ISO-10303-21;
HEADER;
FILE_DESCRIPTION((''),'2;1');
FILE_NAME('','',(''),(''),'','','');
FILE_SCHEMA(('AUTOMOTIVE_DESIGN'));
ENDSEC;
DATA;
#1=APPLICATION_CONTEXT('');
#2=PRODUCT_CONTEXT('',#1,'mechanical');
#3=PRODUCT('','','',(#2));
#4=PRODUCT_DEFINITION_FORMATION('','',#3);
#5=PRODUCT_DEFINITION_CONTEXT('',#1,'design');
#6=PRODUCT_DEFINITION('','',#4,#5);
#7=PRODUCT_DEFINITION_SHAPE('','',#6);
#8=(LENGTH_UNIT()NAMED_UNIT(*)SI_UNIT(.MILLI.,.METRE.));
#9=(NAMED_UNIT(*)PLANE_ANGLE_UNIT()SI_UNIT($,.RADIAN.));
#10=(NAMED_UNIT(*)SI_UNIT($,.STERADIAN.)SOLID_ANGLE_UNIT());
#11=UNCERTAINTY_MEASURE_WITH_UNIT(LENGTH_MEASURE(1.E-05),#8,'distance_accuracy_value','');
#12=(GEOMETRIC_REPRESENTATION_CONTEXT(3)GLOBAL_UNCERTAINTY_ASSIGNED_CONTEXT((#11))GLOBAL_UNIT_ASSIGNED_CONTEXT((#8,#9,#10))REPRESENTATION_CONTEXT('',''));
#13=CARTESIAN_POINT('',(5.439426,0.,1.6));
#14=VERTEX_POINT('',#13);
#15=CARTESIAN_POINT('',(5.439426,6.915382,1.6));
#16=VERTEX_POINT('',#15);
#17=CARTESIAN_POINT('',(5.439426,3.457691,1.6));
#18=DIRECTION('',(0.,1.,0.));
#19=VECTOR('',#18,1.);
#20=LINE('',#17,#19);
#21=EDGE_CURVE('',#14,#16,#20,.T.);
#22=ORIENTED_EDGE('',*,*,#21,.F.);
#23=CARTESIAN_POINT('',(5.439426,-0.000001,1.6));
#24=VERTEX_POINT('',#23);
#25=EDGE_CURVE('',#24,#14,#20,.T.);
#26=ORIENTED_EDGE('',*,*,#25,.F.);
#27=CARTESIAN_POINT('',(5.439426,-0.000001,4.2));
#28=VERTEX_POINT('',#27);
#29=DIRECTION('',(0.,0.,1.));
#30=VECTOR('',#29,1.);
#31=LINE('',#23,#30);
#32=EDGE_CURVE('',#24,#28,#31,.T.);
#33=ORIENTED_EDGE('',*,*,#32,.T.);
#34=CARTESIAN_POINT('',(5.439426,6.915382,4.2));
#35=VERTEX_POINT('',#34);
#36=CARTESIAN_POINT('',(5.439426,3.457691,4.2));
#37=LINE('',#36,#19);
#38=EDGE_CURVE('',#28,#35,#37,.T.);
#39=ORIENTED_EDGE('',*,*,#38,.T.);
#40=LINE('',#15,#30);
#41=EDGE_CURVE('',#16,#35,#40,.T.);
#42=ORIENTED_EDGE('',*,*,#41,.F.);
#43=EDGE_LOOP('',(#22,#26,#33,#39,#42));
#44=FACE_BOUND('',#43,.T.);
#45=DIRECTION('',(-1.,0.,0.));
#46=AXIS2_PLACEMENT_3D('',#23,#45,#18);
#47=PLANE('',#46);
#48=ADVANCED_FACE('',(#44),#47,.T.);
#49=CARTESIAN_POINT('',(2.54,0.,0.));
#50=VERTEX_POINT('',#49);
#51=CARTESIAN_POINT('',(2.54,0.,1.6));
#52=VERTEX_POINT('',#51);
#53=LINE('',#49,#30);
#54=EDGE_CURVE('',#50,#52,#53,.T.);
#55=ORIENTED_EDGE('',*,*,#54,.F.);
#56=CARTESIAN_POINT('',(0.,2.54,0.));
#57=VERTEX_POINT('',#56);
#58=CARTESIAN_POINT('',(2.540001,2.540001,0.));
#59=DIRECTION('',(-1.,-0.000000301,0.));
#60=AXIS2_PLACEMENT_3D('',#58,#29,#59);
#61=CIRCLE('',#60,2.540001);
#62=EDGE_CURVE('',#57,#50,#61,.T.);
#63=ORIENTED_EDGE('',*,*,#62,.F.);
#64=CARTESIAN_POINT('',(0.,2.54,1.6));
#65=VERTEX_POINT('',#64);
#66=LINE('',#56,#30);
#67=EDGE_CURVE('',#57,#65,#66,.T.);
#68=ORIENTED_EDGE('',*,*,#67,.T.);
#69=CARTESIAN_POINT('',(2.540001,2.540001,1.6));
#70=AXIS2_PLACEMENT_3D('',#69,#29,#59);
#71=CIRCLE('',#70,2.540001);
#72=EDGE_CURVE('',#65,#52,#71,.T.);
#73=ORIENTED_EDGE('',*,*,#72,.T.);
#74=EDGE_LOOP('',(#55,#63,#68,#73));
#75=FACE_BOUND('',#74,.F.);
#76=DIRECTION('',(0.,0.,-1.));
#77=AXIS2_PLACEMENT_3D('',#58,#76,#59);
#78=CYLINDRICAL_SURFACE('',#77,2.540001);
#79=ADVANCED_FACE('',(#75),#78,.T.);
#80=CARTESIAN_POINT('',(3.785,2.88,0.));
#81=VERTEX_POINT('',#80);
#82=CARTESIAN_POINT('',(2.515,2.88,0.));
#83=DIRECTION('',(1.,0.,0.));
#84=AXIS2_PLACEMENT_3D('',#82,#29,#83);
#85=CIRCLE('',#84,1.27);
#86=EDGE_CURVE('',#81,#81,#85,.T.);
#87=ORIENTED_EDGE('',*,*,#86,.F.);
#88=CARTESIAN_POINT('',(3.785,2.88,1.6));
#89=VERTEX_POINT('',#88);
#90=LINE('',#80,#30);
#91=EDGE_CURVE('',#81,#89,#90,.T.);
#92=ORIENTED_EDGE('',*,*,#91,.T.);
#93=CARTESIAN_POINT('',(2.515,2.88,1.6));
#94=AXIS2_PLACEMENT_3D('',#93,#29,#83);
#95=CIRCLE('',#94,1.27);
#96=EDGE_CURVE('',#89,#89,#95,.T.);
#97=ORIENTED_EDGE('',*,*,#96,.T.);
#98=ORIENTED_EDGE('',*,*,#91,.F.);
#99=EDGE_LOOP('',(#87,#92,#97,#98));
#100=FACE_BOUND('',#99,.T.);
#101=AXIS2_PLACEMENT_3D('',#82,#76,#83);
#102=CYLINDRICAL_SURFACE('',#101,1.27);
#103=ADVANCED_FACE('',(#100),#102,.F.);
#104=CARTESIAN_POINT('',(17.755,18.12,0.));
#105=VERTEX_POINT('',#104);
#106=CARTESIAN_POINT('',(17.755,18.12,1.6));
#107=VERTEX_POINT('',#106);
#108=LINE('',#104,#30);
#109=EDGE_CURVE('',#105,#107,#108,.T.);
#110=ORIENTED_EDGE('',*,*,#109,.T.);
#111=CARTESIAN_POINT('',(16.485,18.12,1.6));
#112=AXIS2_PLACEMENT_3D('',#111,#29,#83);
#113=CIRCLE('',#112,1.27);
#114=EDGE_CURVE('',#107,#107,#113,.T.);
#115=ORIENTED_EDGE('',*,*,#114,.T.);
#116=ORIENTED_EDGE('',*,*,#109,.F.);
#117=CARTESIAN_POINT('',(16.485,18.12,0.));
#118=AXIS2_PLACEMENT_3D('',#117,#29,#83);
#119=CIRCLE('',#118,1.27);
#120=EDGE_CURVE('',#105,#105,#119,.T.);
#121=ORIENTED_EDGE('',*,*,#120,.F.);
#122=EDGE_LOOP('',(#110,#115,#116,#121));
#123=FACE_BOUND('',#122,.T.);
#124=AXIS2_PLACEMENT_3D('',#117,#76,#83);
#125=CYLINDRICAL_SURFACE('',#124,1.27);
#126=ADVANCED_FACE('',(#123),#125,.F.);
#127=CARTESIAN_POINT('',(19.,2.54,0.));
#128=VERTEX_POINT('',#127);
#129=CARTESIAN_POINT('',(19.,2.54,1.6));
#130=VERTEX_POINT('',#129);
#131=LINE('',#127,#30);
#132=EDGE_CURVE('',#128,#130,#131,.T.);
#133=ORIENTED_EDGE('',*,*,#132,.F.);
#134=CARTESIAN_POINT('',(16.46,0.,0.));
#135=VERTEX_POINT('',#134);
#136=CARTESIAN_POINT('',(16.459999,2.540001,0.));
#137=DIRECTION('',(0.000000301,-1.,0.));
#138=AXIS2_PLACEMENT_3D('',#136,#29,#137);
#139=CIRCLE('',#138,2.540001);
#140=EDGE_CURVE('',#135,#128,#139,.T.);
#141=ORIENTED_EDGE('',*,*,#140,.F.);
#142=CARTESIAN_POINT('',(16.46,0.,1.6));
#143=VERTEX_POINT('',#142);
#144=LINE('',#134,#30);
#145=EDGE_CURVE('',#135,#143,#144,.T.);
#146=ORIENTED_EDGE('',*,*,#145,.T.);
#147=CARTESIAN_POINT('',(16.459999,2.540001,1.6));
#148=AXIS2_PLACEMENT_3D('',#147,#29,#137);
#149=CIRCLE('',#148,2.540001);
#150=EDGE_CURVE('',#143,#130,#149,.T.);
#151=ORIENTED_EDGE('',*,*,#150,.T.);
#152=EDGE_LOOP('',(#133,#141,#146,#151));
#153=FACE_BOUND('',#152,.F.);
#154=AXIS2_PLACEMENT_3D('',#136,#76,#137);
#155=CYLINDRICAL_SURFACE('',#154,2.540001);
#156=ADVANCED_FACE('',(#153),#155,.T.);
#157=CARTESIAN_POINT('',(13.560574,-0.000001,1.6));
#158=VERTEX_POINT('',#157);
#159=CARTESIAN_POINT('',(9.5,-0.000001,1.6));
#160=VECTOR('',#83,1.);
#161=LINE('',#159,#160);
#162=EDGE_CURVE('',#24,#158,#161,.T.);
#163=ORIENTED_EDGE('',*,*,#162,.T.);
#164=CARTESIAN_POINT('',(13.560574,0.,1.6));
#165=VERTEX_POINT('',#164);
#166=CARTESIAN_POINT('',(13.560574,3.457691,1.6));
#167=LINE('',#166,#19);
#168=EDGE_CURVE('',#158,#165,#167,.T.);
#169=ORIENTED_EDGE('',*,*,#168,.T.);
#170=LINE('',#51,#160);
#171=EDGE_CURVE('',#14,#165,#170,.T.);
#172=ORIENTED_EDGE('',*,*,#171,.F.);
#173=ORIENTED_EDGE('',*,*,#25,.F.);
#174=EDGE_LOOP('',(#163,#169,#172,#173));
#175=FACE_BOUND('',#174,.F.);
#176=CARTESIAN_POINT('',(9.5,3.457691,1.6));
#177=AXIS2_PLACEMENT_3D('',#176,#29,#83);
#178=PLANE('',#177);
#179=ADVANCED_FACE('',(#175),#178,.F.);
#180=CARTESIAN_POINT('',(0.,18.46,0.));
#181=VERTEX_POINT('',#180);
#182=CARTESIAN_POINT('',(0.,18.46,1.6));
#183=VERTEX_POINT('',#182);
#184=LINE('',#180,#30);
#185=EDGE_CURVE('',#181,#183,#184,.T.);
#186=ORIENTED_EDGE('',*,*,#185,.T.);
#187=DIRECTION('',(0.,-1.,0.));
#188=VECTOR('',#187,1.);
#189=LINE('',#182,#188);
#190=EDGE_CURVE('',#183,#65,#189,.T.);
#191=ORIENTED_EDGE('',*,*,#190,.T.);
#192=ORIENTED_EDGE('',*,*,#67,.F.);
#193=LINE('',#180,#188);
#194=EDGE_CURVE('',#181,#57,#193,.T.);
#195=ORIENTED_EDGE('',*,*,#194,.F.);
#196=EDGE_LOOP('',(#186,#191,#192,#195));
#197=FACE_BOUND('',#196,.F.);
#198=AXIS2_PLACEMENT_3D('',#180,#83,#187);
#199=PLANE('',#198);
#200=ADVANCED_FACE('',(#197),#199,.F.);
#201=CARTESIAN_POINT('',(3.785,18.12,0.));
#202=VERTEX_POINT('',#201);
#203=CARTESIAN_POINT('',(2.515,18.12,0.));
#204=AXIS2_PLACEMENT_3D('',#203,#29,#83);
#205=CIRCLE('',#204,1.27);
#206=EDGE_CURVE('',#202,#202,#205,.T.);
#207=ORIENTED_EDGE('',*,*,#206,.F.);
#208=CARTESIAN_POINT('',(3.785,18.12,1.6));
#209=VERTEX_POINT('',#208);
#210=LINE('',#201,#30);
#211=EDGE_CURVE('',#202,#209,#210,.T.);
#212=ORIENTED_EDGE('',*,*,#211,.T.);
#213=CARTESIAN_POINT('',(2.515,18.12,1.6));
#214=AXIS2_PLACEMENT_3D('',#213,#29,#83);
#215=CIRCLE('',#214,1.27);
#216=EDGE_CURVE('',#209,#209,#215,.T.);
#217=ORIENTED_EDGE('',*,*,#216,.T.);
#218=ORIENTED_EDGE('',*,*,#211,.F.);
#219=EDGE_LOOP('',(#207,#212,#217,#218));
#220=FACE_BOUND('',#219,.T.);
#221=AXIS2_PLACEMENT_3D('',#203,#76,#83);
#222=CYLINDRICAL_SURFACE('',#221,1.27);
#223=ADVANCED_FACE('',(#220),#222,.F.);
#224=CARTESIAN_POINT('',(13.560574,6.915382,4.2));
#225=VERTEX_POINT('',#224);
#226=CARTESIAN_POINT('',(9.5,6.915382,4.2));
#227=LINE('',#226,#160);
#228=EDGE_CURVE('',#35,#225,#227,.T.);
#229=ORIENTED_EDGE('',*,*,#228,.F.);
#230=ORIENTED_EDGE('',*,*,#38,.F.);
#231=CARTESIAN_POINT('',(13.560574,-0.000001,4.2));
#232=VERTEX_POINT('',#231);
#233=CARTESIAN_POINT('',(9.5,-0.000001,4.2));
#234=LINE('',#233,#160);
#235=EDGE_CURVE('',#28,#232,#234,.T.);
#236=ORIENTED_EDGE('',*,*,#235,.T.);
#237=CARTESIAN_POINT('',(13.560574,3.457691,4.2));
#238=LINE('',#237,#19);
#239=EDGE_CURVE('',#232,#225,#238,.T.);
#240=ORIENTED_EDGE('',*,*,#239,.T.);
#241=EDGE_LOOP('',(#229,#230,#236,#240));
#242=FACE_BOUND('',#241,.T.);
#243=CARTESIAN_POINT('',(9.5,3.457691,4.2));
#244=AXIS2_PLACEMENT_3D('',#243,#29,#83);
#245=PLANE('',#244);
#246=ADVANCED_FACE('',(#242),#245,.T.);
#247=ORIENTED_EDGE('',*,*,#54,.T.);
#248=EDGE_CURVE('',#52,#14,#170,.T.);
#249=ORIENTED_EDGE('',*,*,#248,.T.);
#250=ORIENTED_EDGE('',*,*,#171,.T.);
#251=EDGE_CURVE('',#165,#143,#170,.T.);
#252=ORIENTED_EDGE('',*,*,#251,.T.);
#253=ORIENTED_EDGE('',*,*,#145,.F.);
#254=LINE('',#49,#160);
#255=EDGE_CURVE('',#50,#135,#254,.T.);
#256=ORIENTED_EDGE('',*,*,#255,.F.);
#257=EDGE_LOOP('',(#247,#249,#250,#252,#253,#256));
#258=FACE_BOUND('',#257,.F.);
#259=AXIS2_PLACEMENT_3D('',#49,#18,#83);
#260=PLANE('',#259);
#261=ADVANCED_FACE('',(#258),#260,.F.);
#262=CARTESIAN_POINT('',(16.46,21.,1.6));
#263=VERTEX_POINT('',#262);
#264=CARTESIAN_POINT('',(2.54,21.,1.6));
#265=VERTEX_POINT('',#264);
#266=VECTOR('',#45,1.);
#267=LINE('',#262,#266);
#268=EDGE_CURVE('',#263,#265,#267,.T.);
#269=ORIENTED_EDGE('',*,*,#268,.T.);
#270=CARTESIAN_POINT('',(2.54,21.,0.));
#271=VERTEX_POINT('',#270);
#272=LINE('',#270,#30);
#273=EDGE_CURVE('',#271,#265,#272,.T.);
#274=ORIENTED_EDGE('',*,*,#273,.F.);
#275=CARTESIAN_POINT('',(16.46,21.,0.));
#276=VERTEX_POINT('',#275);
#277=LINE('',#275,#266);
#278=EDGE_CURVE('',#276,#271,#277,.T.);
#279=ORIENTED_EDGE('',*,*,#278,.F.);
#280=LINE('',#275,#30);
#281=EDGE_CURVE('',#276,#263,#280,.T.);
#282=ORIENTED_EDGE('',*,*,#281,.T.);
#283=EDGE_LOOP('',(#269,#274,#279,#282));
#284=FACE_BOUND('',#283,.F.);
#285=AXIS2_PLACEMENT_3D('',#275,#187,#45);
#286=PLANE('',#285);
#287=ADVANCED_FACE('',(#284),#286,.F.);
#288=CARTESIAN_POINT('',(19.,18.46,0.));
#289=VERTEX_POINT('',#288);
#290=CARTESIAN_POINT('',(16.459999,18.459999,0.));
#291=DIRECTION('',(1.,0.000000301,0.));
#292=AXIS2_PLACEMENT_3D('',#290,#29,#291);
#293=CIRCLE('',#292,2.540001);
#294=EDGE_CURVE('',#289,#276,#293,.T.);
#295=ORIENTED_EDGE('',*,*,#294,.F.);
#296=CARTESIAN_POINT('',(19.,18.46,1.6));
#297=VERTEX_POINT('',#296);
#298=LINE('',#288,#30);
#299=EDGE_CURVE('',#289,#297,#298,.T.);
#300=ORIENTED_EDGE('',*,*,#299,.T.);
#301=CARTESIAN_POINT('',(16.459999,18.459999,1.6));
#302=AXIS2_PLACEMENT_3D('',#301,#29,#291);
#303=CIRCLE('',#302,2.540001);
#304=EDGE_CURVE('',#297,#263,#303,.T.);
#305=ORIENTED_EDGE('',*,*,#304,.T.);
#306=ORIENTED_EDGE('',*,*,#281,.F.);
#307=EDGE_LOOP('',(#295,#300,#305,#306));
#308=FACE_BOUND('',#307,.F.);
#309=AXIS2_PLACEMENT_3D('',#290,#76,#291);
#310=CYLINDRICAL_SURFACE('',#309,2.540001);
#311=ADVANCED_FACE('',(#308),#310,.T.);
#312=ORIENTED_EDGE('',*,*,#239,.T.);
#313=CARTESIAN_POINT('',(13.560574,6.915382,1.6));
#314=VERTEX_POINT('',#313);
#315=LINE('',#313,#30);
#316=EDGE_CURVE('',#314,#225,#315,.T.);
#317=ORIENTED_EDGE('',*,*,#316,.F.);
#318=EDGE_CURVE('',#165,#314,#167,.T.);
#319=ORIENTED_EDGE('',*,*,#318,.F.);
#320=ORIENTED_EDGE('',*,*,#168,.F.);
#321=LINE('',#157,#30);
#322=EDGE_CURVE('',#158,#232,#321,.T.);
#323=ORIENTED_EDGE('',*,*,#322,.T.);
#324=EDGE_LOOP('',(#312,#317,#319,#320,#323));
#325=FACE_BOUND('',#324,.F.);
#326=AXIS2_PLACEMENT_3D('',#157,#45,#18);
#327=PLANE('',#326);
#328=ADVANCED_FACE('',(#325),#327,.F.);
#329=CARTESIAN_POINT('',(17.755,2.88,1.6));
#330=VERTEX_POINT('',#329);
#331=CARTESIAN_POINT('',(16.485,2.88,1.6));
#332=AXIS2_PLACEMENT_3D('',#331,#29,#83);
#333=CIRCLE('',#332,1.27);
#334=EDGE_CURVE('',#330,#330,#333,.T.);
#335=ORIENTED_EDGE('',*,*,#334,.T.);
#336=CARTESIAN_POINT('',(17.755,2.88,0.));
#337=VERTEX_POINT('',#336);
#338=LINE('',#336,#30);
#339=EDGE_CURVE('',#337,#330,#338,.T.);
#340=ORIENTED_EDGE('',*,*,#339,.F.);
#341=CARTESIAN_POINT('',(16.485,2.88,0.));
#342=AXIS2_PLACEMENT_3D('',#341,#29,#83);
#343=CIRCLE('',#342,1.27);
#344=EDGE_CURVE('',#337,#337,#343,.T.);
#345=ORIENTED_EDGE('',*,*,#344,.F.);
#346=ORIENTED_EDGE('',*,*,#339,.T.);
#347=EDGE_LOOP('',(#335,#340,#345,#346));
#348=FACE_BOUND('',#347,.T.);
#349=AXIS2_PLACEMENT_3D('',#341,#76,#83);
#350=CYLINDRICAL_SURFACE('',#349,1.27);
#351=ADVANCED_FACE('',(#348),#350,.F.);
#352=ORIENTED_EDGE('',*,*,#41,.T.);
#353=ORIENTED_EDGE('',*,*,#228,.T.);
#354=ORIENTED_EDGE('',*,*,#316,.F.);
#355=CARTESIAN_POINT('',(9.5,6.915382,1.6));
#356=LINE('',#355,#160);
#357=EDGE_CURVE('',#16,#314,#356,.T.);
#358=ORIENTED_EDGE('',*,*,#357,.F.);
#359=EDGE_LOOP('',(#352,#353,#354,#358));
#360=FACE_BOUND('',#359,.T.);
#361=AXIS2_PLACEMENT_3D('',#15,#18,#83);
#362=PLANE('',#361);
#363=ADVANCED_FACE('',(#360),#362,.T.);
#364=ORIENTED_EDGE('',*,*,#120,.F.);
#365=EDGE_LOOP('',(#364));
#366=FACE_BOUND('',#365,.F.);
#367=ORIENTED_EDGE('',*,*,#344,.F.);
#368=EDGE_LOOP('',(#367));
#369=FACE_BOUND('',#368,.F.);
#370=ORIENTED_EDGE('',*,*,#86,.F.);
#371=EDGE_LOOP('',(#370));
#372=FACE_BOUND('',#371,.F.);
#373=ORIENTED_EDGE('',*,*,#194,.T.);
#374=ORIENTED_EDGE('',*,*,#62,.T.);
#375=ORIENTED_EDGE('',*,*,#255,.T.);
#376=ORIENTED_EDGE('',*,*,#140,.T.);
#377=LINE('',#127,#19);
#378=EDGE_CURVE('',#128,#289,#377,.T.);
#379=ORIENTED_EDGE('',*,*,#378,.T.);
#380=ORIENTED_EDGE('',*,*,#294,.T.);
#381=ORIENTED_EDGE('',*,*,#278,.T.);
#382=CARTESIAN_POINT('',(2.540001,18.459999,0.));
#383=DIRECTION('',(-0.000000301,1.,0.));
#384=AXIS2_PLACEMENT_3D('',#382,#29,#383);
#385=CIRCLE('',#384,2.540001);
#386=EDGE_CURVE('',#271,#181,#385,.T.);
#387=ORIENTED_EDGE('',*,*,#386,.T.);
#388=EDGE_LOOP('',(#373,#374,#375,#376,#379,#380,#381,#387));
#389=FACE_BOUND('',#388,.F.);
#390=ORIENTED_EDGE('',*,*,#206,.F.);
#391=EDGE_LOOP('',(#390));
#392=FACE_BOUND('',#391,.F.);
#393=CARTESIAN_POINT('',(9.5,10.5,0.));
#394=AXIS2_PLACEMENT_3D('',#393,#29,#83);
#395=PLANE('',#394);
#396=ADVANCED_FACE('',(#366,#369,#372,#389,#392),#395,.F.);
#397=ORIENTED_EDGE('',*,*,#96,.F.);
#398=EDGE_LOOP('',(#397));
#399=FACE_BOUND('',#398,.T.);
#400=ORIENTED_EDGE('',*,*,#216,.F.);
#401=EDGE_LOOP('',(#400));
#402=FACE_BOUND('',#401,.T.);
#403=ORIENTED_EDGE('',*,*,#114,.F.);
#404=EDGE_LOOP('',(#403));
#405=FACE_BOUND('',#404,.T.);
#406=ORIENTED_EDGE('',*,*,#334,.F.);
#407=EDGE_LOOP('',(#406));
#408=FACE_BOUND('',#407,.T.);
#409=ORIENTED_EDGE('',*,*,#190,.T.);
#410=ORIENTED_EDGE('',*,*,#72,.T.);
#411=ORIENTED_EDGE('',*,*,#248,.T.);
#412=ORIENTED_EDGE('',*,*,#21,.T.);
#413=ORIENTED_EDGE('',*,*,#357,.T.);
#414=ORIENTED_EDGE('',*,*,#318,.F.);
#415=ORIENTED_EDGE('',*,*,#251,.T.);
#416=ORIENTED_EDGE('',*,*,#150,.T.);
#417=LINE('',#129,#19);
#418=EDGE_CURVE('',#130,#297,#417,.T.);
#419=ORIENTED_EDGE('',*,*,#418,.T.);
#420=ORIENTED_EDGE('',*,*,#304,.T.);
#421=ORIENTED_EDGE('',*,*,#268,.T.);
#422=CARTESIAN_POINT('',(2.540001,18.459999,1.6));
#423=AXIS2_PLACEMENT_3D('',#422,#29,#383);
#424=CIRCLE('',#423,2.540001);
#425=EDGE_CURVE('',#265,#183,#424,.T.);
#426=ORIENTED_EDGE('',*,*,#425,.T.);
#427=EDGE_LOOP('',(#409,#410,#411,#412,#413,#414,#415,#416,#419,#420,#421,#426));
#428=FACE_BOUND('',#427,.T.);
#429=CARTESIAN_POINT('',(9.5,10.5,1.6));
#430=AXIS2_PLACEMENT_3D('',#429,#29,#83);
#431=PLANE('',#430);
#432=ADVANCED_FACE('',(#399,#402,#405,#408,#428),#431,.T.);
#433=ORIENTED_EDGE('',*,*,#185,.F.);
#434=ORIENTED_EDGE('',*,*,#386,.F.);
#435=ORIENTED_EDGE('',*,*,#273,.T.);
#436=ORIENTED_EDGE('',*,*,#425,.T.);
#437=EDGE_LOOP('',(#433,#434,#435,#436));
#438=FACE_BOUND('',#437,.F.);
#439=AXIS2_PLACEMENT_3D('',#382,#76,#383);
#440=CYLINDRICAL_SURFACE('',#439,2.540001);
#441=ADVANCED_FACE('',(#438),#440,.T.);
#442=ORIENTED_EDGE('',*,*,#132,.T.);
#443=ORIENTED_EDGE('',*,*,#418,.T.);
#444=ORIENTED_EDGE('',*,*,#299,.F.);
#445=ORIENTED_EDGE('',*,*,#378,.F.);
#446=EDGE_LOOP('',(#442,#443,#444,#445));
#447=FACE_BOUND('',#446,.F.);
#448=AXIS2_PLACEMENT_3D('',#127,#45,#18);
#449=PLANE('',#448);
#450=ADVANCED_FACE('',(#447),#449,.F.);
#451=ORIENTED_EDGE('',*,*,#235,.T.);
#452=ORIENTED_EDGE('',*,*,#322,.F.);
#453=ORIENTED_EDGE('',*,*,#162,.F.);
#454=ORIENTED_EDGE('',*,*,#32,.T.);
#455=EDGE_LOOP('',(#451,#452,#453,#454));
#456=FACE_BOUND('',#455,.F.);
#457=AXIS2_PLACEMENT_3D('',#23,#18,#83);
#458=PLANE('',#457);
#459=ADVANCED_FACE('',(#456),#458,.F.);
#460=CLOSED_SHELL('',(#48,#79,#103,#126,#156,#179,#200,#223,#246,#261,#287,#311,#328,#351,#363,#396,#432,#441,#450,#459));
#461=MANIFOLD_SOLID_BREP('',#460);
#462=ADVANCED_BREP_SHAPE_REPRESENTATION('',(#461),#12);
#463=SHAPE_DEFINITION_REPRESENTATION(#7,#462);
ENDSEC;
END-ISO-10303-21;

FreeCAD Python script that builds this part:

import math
import FreeCAD as App
import Part
import Sketcher

V = App.Vector
Q = App.Units.Quantity

doc = App.newDocument("Part")
params = doc.addObject("Spreadsheet::Sheet", "Params")
for row, (alias, value) in enumerate([
    ("sketch1_diameter", "2.54 mm"),
    ("sketch1_radius", "2.540001 mm"),
    ("pad1_length", "1.6 mm"),
    ("pad2_length", "2.6 mm"),
], start=1):
    params.set(f"A{row}", alias)
    params.set(f"B{row}", "=" + value)
    params.setAlias(f"B{row}", alias)

body = doc.addObject("PartDesign::Body", "Body")

sketch1 = doc.addObject("Sketcher::SketchObject", "Sketch")
body.addObject(sketch1)
sketch1.AttachmentSupport = (doc.XY_Plane, [""])
sketch1.MapMode = "FlatFace"
sketch1.addGeometry([
    Part.ArcOfCircle(Part.Circle(V(2.540001, 2.540001, 0), V(0, 0, 1), 2.540001), math.radians(-179.999983), math.radians(-90.000017)),
    Part.LineSegment(V(2.54, 0, 0), V(16.46, 0, 0)),
    Part.ArcOfCircle(Part.Circle(V(16.459999, 2.540001, 0), V(0, 0, 1), 2.540001), math.radians(-89.999983), math.radians(-0.000017)),
    Part.LineSegment(V(19, 2.54, 0), V(19, 18.46, 0)),
    Part.ArcOfCircle(Part.Circle(V(16.459999, 18.459999, 0), V(0, 0, 1), 2.540001), math.radians(0.000017), math.radians(89.999983)),
    Part.LineSegment(V(16.46, 21, 0), V(2.54, 21, 0)),
    Part.ArcOfCircle(Part.Circle(V(2.540001, 18.459999, 0), V(0, 0, 1), 2.540001), math.radians(90.000017), math.radians(179.999983)),
    Part.LineSegment(V(0, 18.46, 0), V(0, 2.54, 0)),
    Part.Circle(V(2.515, 2.88, 0), V(0, 0, 1), 1.27),
    Part.Circle(V(16.485, 2.88, 0), V(0, 0, 1), 1.27),
    Part.Circle(V(2.515, 18.12, 0), V(0, 0, 1), 1.27),
    Part.Circle(V(16.485, 18.12, 0), V(0, 0, 1), 1.27),
], False)
sketch1.addConstraint([
    Sketcher.Constraint("Tangent", 0, 2, 1, 1),
    Sketcher.Constraint("Tangent", 1, 2, 2, 1),
    Sketcher.Constraint("Tangent", 2, 2, 3, 1),
    Sketcher.Constraint("Tangent", 3, 2, 4, 1),
    Sketcher.Constraint("Tangent", 4, 2, 5, 1),
    Sketcher.Constraint("Tangent", 5, 2, 6, 1),
    Sketcher.Constraint("Tangent", 6, 2, 7, 1),
    Sketcher.Constraint("Tangent", 7, 2, 0, 1),
    Sketcher.Constraint("Horizontal", 1),
    Sketcher.Constraint("Vertical", 3),
    Sketcher.Constraint("Horizontal", 5),
    Sketcher.Constraint("Vertical", 7),
    Sketcher.Constraint("Equal", 0, 2),
    Sketcher.Constraint("Equal", 2, 4),
    Sketcher.Constraint("Equal", 4, 6),
    Sketcher.Constraint("Equal", 8, 9),
    Sketcher.Constraint("Equal", 9, 10),
    Sketcher.Constraint("Equal", 10, 11),
    Sketcher.Constraint("PointOnObject", 0, 2, -1),
    Sketcher.Constraint("PointOnObject", 6, 2, -2),
    Sketcher.Constraint("Horizontal", 8, 3, 9, 3),
    Sketcher.Constraint("Horizontal", 10, 3, 11, 3),
    Sketcher.Constraint("Vertical", 8, 3, 10, 3),
    Sketcher.Constraint("Vertical", 9, 3, 11, 3),
    Sketcher.Constraint("Diameter", 8, Q("2.54 mm")),
    Sketcher.Constraint("Radius", 0, Q("2.540001 mm")),
    Sketcher.Constraint("DistanceX", -1, 1, 2, 2, Q("19 mm")),
    Sketcher.Constraint("DistanceY", -1, 1, 4, 2, Q("21 mm")),
    Sketcher.Constraint("DistanceY", -1, 1, 8, 3, Q("2.88 mm")),
    Sketcher.Constraint("DistanceY", -1, 1, 10, 3, Q("18.12 mm")),
    Sketcher.Constraint("DistanceX", 8, 3, 9, 3, Q("13.97 mm")),
    Sketcher.Constraint("DistanceX", -1, 1, 8, 3, Q("2.515 mm")),
])
sketch1.setExpression("Constraints[24]", "Params.sketch1_diameter")
sketch1.setExpression("Constraints[25]", "Params.sketch1_radius")
pad1 = doc.addObject("PartDesign::Pad", "Pad")
body.addObject(pad1)
pad1.Profile = sketch1
pad1.setExpression("Length", "Params.pad1_length")

sketch2 = doc.addObject("Sketcher::SketchObject", "Sketch001")
body.addObject(sketch2)
sketch2.AttachmentSupport = (doc.XY_Plane, [""])
sketch2.MapMode = "FlatFace"
sketch2.AttachmentOffset = App.Placement(V(0, 0, 1.6), App.Rotation())
sketch2.addGeometry([
    Part.LineSegment(V(5.439426, 6.915382, 0), V(5.439426, 0, 0)),
    Part.LineSegment(V(5.439426, 0, 0), V(13.560574, 0, 0)),
    Part.LineSegment(V(13.560574, 0, 0), V(13.560574, 6.915382, 0)),
    Part.LineSegment(V(13.560574, 6.915382, 0), V(5.439426, 6.915382, 0)),
], False)
sketch2.addConstraint([
    Sketcher.Constraint("Coincident", 0, 2, 1, 1),
    Sketcher.Constraint("Coincident", 1, 2, 2, 1),
    Sketcher.Constraint("Coincident", 2, 2, 3, 1),
    Sketcher.Constraint("Coincident", 3, 2, 0, 1),
    Sketcher.Constraint("Vertical", 0),
    Sketcher.Constraint("Horizontal", 1),
    Sketcher.Constraint("Vertical", 2),
    Sketcher.Constraint("Horizontal", 3),
    Sketcher.Constraint("PointOnObject", 0, 2, -1),
    Sketcher.Constraint("DistanceX", 1, 1, 1, 2, Q("8.121148 mm")),
    Sketcher.Constraint("DistanceY", 0, 2, 0, 1, Q("6.915383 mm")),
    Sketcher.Constraint("DistanceX", -1, 1, 0, 2, Q("5.439426 mm")),
])
pad2 = doc.addObject("PartDesign::Pad", "Pad001")
body.addObject(pad2)
pad2.Profile = sketch2
pad2.setExpression("Length", "Params.pad2_length")

doc.recompute()
